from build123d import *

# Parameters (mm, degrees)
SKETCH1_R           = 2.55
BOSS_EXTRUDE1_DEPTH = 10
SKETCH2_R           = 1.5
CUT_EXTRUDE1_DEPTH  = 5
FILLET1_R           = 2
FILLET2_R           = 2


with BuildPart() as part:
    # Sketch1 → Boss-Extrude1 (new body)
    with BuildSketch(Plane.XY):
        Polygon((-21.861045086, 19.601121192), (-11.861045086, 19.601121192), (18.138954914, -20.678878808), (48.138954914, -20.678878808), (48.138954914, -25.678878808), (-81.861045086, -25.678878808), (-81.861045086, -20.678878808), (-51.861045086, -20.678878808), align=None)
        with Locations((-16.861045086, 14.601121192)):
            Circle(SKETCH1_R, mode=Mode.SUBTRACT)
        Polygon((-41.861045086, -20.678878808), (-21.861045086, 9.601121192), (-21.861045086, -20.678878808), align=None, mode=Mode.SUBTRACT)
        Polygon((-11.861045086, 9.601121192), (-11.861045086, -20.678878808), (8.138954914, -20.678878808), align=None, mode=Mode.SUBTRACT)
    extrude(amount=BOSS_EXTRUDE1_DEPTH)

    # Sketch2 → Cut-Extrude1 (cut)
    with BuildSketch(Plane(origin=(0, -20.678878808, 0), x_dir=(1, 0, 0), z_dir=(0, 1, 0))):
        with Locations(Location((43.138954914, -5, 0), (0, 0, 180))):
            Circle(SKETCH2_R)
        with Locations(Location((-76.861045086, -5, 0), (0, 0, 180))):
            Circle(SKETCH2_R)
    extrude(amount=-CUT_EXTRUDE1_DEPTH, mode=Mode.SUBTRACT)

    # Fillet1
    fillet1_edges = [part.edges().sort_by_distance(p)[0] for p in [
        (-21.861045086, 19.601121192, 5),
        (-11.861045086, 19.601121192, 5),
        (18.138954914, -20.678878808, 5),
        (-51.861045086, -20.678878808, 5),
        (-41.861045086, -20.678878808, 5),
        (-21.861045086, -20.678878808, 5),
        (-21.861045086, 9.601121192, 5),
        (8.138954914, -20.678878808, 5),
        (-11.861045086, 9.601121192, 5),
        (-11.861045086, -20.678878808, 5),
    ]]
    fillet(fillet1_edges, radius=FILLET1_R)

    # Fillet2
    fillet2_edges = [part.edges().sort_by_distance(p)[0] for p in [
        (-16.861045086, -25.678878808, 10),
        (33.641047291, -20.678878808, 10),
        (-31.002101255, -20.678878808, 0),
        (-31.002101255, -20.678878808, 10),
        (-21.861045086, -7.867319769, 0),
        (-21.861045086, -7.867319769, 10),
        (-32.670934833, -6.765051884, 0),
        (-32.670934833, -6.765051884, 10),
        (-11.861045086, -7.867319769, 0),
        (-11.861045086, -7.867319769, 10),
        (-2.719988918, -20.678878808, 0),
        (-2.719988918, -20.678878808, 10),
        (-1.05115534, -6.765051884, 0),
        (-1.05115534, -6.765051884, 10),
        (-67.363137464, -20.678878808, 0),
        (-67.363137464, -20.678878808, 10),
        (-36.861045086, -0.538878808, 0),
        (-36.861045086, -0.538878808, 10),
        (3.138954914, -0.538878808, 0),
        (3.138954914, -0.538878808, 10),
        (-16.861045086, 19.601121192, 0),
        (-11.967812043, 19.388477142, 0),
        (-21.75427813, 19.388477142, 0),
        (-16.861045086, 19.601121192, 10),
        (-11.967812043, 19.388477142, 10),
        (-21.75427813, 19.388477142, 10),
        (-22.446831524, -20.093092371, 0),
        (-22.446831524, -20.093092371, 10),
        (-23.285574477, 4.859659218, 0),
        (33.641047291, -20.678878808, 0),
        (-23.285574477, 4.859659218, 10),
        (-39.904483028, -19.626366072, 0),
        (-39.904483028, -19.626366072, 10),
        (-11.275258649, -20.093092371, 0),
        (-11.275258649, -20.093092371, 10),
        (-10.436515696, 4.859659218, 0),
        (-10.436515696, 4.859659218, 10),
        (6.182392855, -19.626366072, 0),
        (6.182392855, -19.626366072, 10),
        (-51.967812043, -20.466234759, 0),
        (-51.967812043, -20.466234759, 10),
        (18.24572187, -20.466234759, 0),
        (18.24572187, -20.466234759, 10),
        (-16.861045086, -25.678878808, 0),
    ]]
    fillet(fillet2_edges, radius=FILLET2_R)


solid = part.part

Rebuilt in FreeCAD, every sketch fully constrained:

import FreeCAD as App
import Part
import Sketcher

V = App.Vector
Q = App.Units.Quantity


def edges_at(feature, points):
    """Names of the edges that pass closest to the given points."""
    edges = feature.Shape.Edges
    near = lambda p: min(range(len(edges)), key=lambda i: edges[i].distToShape(Part.Vertex(*p))[0])
    return sorted({f"Edge{near(p) + 1}" for p in points})


def add_polygon(sketch, points):
    """Adds a closed chain of lines whose ends are joined by coincident constraints."""
    first, n = sketch.GeometryCount, len(points)
    for a, b in zip(points, points[1:] + points[:1]):
        sketch.addGeometry(Part.LineSegment(App.Vector(*a, 0), App.Vector(*b, 0)), False)
    for i in range(n):
        sketch.addConstraint(Sketcher.Constraint("Coincident", first + i, 2, first + (i + 1) % n, 1))

doc = App.newDocument("Part")
body = doc.addObject("PartDesign::Body", "Body")

# Sketch on XY plane
sketch1 = doc.addObject("Sketcher::SketchObject", "Sketch")
body.addObject(sketch1)
sketch1.AttachmentSupport = (doc.XY_Plane, [""])
sketch1.MapMode = "FlatFace"
add_polygon(sketch1, [(-11.9, 19.6), (-21.9, 19.6), (-51.9, -20.7), (-81.9, -20.7), (-81.9, -25.7), (48.1, -25.7), (48.1, -20.7), (18.1, -20.7)])  # lines 0-7
add_polygon(sketch1, [(-11.9, 9.6), (8.1, -20.7), (-11.9, -20.7)])  # lines 8-10
add_polygon(sketch1, [(-41.9, -20.7), (-21.9, 9.6), (-21.9, -20.7)])  # lines 11-13
sketch1.addGeometry(Part.Circle(V(-16.9, 14.6, 0), V(0, 0, 1), 2.5), False)  # 14
sketch1.addConstraint([
    Sketcher.Constraint("Horizontal", 0),
    Sketcher.Constraint("Horizontal", 2),
    Sketcher.Constraint("Vertical", 3),
    Sketcher.Constraint("Horizontal", 4),
    Sketcher.Constraint("Vertical", 5),
    Sketcher.Constraint("Horizontal", 6),
    Sketcher.Constraint("Horizontal", 9),
    Sketcher.Constraint("Vertical", 10),
    Sketcher.Constraint("Vertical", 12),
    Sketcher.Constraint("Horizontal", 13),
    Sketcher.Constraint("Horizontal", 2, 2, 5, 2),
    Sketcher.Constraint("Horizontal", 6, 2, 8, 2),
    Sketcher.Constraint("Horizontal", 10, 2, 11, 2),
    Sketcher.Constraint("Horizontal", 9, 2, 12, 2),
    Sketcher.Constraint("Vertical", 7, 2, 9, 2),
    Sketcher.Constraint("Vertical", 0, 2, 11, 2),
    Sketcher.Constraint("Equal", 2, 6),
    Sketcher.Constraint("Equal", 9, 13),
    Sketcher.Constraint("Equal", 1, 7),
    Sketcher.Constraint("Diameter", 14, Q("5.1 mm")),
    Sketcher.Constraint("DistanceX", 0, 2, 0, 1, Q("10 mm")),
    Sketcher.Constraint("DistanceX", 2, 2, 2, 1, Q("30 mm")),
    Sketcher.Constraint("DistanceX", 4, 1, 4, 2, Q("130 mm")),
    Sketcher.Constraint("DistanceX", 9, 2, 9, 1, Q("20 mm")),
    Sketcher.Constraint("DistanceY", 3, 2, 3, 1, Q("5 mm")),
    Sketcher.Constraint("DistanceX", 0, 2, 14, 3, Q("5 mm")),
    Sketcher.Constraint("DistanceY", 14, 3, 0, 2, Q("5 mm")),
    Sketcher.Constraint("DistanceY", 10, 2, 14, 3, Q("5 mm")),
    Sketcher.Constraint("DistanceY", 10, 1, 10, 2, Q("30.28 mm")),
    Sketcher.Constraint("DistanceY", -1, 1, 14, 3, Q("14.601121 mm")),
    Sketcher.Constraint("DistanceX", 14, 3, -1, 1, Q("16.861045 mm")),
])
pad1 = doc.addObject("PartDesign::Pad", "Pad")
body.addObject(pad1)
pad1.Profile = sketch1
pad1.Length = 10

# Sketch on XZ plane
sketch2 = doc.addObject("Sketcher::SketchObject", "Sketch001")
body.addObject(sketch2)
sketch2.AttachmentSupport = (doc.XZ_Plane, [""])
sketch2.MapMode = "FlatFace"
sketch2.AttachmentOffset = App.Placement(V(0, 0, 20.678879), App.Rotation())
sketch2.addGeometry([
    Part.Circle(V(43.1, 5, 0), V(0, 0, 1), 1.5),
    Part.Circle(V(-76.9, 5, 0), V(0, 0, 1), 1.5),
], False)
sketch2.addConstraint([
    Sketcher.Constraint("Equal", 0, 1),
    Sketcher.Constraint("Horizontal", 0, 3, 1, 3),
    Sketcher.Constraint("Diameter", 0, Q("3 mm")),
    Sketcher.Constraint("DistanceY", -1, 1, 0, 3, Q("5 mm")),
    Sketcher.Constraint("DistanceX", 1, 3, 0, 3, Q("120 mm")),
    Sketcher.Constraint("DistanceX", -1, 1, 0, 3, Q("43.138955 mm")),
])
pocket1 = doc.addObject("PartDesign::Pocket", "Pocket")
body.addObject(pocket1)
pocket1.Profile = sketch2
pocket1.Length = 5
pocket1.Reversed = True
doc.recompute()

fillet = doc.addObject("PartDesign::Fillet", "Fillet")
body.addObject(fillet)
fillet.Base = (pocket1, edges_at(pocket1, [
    (-21.861, 19.601, 5),
    (-11.861, 19.601, 5),
    (18.139, -20.679, 5),
    (-51.861, -20.679, 5),
    (-41.861, -20.679, 5),
    (-21.861, -20.679, 5),
    (-21.861, 9.601, 5),
    (8.139, -20.679, 5),
    (-11.861, 9.601, 5),
    (-11.861, -20.679, 5),
]))
fillet.Radius = 2
doc.recompute()

fillet2 = doc.addObject("PartDesign::Fillet", "Fillet001")
body.addObject(fillet2)
fillet2.Base = (fillet, edges_at(fillet, [
    (-16.861, -25.679, 10),
    (33.641, -20.679, 10),
    (-31.002, -20.679, 0),
    (-31.002, -20.679, 10),
    (-21.861, -7.867, 0),
    (-21.861, -7.867, 10),
    (-32.671, -6.765, 0),
    (-32.671, -6.765, 10),
    (-11.861, -7.867, 0),
    (-11.861, -7.867, 10),
    (-2.72, -20.679, 0),
    (-2.72, -20.679, 10),
    (-1.051, -6.765, 0),
    (-1.051, -6.765, 10),
    (-67.363, -20.679, 0),
    (-67.363, -20.679, 10),
    (-36.861, -0.539, 0),
    (-36.861, -0.539, 10),
    (3.139, -0.539, 0),
    (3.139, -0.539, 10),
    (-16.861, 19.601, 0),
    (-11.968, 19.388, 0),
    (-21.754, 19.388, 0),
    (-16.861, 19.601, 10),
    (-11.968, 19.388, 10),
    (-21.754, 19.388, 10),
    (-22.447, -20.093, 0),
    (-22.447, -20.093, 10),
    (-23.286, 4.86, 0),
    (33.641, -20.679, 0),
    (-23.286, 4.86, 10),
    (-39.904, -19.626, 0),
    (-39.904, -19.626, 10),
    (-11.275, -20.093, 0),
    (-11.275, -20.093, 10),
    (-10.437, 4.86, 0),
    (-10.437, 4.86, 10),
    (6.182, -19.626, 0),
    (6.182, -19.626, 10),
    (-51.968, -20.466, 0),
    (-51.968, -20.466, 10),
    (18.246, -20.466, 0),
    (18.246, -20.466, 10),
    (-16.861, -25.679, 0),
]))
fillet2.Radius = 2

doc.recompute()
